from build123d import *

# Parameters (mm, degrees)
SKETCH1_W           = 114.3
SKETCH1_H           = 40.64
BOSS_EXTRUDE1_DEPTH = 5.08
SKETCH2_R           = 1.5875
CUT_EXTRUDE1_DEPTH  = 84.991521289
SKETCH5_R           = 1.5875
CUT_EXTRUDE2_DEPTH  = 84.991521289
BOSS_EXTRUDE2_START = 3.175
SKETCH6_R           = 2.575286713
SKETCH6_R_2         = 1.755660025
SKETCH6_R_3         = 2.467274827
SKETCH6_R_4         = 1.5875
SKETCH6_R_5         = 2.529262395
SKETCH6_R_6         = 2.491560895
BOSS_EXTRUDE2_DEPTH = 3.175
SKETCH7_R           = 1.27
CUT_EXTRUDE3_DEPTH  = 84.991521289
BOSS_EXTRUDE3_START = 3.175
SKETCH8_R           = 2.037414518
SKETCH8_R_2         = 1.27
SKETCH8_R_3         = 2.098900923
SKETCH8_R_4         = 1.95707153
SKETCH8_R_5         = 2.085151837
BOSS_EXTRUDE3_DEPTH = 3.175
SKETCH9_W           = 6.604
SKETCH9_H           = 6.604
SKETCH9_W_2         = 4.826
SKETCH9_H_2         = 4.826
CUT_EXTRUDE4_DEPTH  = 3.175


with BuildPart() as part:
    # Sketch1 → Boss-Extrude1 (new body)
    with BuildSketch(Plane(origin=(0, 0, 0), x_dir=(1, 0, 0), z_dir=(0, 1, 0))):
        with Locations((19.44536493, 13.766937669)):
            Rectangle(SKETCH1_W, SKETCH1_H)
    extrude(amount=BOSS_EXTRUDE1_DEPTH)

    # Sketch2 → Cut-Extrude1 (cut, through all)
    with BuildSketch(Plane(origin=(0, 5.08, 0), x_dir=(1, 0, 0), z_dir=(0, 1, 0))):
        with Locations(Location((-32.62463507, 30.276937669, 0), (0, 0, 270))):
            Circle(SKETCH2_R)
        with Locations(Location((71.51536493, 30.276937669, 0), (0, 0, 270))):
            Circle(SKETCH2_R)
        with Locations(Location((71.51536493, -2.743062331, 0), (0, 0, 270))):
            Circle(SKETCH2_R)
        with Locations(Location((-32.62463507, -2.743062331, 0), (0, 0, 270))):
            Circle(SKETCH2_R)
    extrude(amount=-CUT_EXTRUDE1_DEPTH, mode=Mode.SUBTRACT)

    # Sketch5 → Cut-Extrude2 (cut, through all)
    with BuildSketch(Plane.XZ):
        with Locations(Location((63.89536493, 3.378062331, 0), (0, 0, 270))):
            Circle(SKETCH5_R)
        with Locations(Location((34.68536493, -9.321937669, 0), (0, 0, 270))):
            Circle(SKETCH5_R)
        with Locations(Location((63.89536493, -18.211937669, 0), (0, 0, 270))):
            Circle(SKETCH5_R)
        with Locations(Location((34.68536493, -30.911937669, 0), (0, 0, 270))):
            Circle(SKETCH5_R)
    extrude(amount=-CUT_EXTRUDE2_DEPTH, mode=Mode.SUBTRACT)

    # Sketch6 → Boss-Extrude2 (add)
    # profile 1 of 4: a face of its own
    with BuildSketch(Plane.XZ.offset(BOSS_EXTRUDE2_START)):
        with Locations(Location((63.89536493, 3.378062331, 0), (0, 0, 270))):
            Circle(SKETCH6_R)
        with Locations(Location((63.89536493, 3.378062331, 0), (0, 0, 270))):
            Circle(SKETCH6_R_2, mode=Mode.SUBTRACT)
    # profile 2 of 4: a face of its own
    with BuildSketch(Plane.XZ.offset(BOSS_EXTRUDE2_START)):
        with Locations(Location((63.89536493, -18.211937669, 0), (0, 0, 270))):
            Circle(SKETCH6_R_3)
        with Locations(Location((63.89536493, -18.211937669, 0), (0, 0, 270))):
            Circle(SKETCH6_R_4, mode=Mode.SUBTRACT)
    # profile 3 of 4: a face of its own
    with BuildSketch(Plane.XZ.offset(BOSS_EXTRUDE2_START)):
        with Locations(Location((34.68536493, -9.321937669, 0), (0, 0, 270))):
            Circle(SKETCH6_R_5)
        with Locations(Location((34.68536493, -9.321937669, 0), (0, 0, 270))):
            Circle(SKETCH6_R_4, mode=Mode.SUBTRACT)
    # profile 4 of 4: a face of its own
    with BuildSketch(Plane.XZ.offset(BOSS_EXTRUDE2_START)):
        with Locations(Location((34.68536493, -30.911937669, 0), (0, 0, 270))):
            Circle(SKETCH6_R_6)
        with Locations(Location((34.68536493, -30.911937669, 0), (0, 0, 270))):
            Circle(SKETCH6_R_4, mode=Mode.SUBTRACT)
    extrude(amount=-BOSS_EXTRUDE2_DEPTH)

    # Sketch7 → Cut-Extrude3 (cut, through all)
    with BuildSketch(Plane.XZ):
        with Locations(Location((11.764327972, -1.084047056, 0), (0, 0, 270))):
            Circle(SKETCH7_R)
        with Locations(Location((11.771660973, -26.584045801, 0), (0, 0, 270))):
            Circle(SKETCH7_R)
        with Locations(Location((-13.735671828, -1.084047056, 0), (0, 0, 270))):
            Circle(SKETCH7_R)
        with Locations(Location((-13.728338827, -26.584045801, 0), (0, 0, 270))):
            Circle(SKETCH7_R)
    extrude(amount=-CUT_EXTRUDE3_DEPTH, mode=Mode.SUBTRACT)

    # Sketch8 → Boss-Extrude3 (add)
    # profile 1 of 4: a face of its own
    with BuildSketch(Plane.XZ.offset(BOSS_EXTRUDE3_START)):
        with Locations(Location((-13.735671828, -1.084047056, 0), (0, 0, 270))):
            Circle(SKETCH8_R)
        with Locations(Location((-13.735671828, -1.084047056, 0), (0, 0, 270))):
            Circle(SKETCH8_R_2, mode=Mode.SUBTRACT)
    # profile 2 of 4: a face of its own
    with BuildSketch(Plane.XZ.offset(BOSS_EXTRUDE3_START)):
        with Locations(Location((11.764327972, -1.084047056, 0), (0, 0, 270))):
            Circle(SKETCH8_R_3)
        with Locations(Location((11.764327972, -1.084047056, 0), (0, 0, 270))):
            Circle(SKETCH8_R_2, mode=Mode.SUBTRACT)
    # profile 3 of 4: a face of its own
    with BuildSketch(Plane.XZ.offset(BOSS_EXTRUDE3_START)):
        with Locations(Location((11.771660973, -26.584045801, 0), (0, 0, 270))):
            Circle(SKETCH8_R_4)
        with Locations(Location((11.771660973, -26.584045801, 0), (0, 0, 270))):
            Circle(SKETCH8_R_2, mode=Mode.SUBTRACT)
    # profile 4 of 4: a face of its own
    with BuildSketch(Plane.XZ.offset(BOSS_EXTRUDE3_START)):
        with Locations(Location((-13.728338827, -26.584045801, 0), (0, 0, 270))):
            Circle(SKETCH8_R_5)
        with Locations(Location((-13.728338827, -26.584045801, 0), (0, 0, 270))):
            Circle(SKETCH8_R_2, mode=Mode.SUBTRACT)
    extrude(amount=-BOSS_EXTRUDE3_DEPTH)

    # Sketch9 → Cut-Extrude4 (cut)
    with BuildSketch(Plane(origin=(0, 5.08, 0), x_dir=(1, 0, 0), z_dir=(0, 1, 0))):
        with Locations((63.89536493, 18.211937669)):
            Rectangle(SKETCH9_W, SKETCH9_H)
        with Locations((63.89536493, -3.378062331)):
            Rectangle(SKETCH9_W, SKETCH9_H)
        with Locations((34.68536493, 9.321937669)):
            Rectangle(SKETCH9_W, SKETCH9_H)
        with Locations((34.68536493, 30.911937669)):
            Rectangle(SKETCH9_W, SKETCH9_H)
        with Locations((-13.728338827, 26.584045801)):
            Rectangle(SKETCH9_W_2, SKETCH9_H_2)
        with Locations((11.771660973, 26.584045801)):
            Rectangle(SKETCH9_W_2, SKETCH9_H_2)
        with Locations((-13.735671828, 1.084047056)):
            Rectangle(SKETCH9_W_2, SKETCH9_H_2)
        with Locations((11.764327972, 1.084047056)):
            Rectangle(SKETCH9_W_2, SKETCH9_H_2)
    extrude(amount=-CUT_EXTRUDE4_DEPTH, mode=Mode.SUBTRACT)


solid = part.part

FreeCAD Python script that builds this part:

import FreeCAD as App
import Part
import Sketcher
Q = App.Units.Quantity

doc = App.newDocument("Part")
body = doc.addObject("PartDesign::Body", "Body")

sketch1 = body.newObject("Sketcher::SketchObject", "Sketch")
sketch1.AttachmentSupport = (doc.getObject("XZ_Plane"), [""])
sketch1.MapMode = "FlatFace"
sketch1.addGeometry([
    Part.LineSegment(App.Vector(-38, -34, 0), App.Vector(-38, 7, 0)),
    Part.LineSegment(App.Vector(-38, 7, 0), App.Vector(77, 7, 0)),
    Part.LineSegment(App.Vector(77, 7, 0), App.Vector(77, -34, 0)),
    Part.LineSegment(App.Vector(77, -34, 0), App.Vector(-38, -34, 0)),
], False)
sketch1.addConstraint([
    Sketcher.Constraint("Coincident", 0, 2, 1, 1),
    Sketcher.Constraint("Coincident", 1, 2, 2, 1),
    Sketcher.Constraint("Coincident", 2, 2, 3, 1),
    Sketcher.Constraint("Coincident", 3, 2, 0, 1),
    Sketcher.Constraint("Vertical", 0),
    Sketcher.Constraint("Horizontal", 1),
    Sketcher.Constraint("Vertical", 2),
    Sketcher.Constraint("Horizontal", 3),
    Sketcher.Constraint("DistanceX", 1, 1, 1, 2, Q("4.5 in")),
    Sketcher.Constraint("DistanceY", 0, 1, 0, 2, Q("1.6 in")),
    Sketcher.Constraint("DistanceX", 0, 2, -1, 1, 37.704635),
    Sketcher.Constraint("DistanceY", -1, 1, 0, 2, 6.553062),
])
pad1 = body.newObject("PartDesign::Pad", "Pad")
pad1.Profile = sketch1
pad1.Length = Q("0.2 in")
pad1.Reversed = True

sketch2 = body.newObject("Sketcher::SketchObject", "Sketch001")
sketch2.AttachmentSupport = (doc.getObject("XZ_Plane"), [""])
sketch2.MapMode = "FlatFace"
sketch2.AttachmentOffset = App.Placement(App.Vector(0, 0, -0.2 * 25.4), App.Rotation())
sketch2.addGeometry([
    Part.Circle(App.Vector(-32.6, -30.3, 0), App.Vector(0, 0, 1), 1.6),
    Part.Circle(App.Vector(71.5, -30.3, 0), App.Vector(0, 0, 1), 1.6),
    Part.Circle(App.Vector(71.5, 2.7, 0), App.Vector(0, 0, 1), 1.6),
    Part.Circle(App.Vector(-32.6, 2.7, 0), App.Vector(0, 0, 1), 1.6),
], False)
sketch2.addConstraint([
    Sketcher.Constraint("Equal", 0, 1),
    Sketcher.Constraint("Equal", 1, 2),
    Sketcher.Constraint("Equal", 2, 3),
    Sketcher.Constraint("Horizontal", 0, 3, 1, 3),
    Sketcher.Constraint("Horizontal", 2, 3, 3, 3),
    Sketcher.Constraint("Vertical", 1, 3, 2, 3),
    Sketcher.Constraint("Vertical", 0, 3, 3, 3),
    Sketcher.Constraint("Diameter", 0, Q("0.125 in")),
    Sketcher.Constraint("DistanceX", 0, 3, 1, 3, Q("4.1 in")),
    Sketcher.Constraint("DistanceY", 1, 3, 2, 3, Q("1.3 in")),
    Sketcher.Constraint("DistanceX", 0, 3, -1, 1, 32.624635),
    Sketcher.Constraint("DistanceY", 0, 3, -1, 1, 30.276938),
])
pocket1 = body.newObject("PartDesign::Pocket", "Pocket")
pocket1.Profile = sketch2
pocket1.Type = "ThroughAll"
pocket1.Reversed = True

sketch3 = body.newObject("Sketcher::SketchObject", "Sketch002")
sketch3.AttachmentSupport = (doc.getObject("XZ_Plane"), [""])
sketch3.MapMode = "FlatFace"
sketch3.addGeometry([
    Part.Circle(App.Vector(63.9, 3.4, 0), App.Vector(0, 0, 1), 1.6),
    Part.Circle(App.Vector(34.7, -9.3, 0), App.Vector(0, 0, 1), 1.6),
    Part.Circle(App.Vector(63.9, -18.2, 0), App.Vector(0, 0, 1), 1.6),
    Part.Circle(App.Vector(34.7, -30.9, 0), App.Vector(0, 0, 1), 1.6),
], False)
sketch3.addConstraint([
    Sketcher.Constraint("Equal", 0, 1),
    Sketcher.Constraint("Equal", 1, 2),
    Sketcher.Constraint("Equal", 2, 3),
    Sketcher.Constraint("Vertical", 0, 3, 2, 3),
    Sketcher.Constraint("Vertical", 1, 3, 3, 3),
    Sketcher.Constraint("Diameter", 0, Q("0.125 in")),
    Sketcher.Constraint("DistanceY", 1, 3, 0, 3, Q("0.5 in")),
    Sketcher.Constraint("DistanceY", 3, 3, 2, 3, Q("0.5 in")),
    Sketcher.Constraint("DistanceX", 1, 3, 0, 3, Q("1.15 in")),
    Sketcher.Constraint("DistanceY", 2, 3, 0, 3, Q("0.85 in")),
    Sketcher.Constraint("DistanceX", -1, 1, 0, 3, 63.895365),
    Sketcher.Constraint("DistanceY", -1, 1, 0, 3, 3.378062),
])
pocket2 = body.newObject("PartDesign::Pocket", "Pocket001")
pocket2.Profile = sketch3
pocket2.Type = "ThroughAll"

sketch4 = body.newObject("Sketcher::SketchObject", "Sketch003")
sketch4.AttachmentSupport = (doc.getObject("XZ_Plane"), [""])
sketch4.MapMode = "FlatFace"
sketch4.AttachmentOffset = App.Placement(App.Vector(0, 0, 0.125 * 25.4), App.Rotation())
sketch4.addGeometry([
    Part.Circle(App.Vector(63.9, 3.4, 0), App.Vector(0, 0, 1), 2.6),
    Part.Circle(App.Vector(63.9, 3.4, 0), App.Vector(0, 0, 1), 1.8),
    Part.Circle(App.Vector(63.9, -18.2, 0), App.Vector(0, 0, 1), 2.5),
    Part.Circle(App.Vector(63.9, -18.2, 0), App.Vector(0, 0, 1), 1.6),
    Part.Circle(App.Vector(34.7, -9.3, 0), App.Vector(0, 0, 1), 2.5),
    Part.Circle(App.Vector(34.7, -9.3, 0), App.Vector(0, 0, 1), 1.6),
    Part.Circle(App.Vector(34.7, -30.9, 0), App.Vector(0, 0, 1), 2.5),
    Part.Circle(App.Vector(34.7, -30.9, 0), App.Vector(0, 0, 1), 1.6),
], False)
sketch4.addConstraint([
    Sketcher.Constraint("Coincident", 1, 3, 0, 3),
    Sketcher.Constraint("Coincident", 3, 3, 2, 3),
    Sketcher.Constraint("Coincident", 5, 3, 4, 3),
    Sketcher.Constraint("Coincident", 7, 3, 6, 3),
    Sketcher.Constraint("Equal", 3, 5),
    Sketcher.Constraint("Equal", 5, 7),
    Sketcher.Constraint("Vertical", 1, 3, 2, 3),
    Sketcher.Constraint("Vertical", 5, 3, 6, 3),
    Sketcher.Constraint("Diameter", 3, Q("0.125 in")),
    Sketcher.Constraint("DistanceY", 4, 3, 0, 3, Q("0.5 in")),
    Sketcher.Constraint("DistanceY", 6, 3, 2, 3, Q("0.5 in")),
    Sketcher.Constraint("DistanceY", 2, 3, 0, 3, Q("0.85 in")),
    Sketcher.Constraint("DistanceX", 4, 3, 2, 3, Q("1.15 in")),
    Sketcher.Constraint("Diameter", 1, 3.51132),
    Sketcher.Constraint("Diameter", 2, 4.93455),
    Sketcher.Constraint("Diameter", 6, 4.983122),
    Sketcher.Constraint("Diameter", 0, 5.150573),
    Sketcher.Constraint("Diameter", 4, 5.058525),
    Sketcher.Constraint("DistanceX", -1, 1, 0, 3, 63.895365),
    Sketcher.Constraint("DistanceY", -1, 1, 0, 3, 3.378062),
])
pad2 = body.newObject("PartDesign::Pad", "Pad001")
pad2.Profile = sketch4
pad2.Length = Q("0.125 in")
pad2.Reversed = True

sketch5 = body.newObject("Sketcher::SketchObject", "Sketch004")
sketch5.AttachmentSupport = (doc.getObject("XZ_Plane"), [""])
sketch5.MapMode = "FlatFace"
sketch5.addGeometry([
    Part.Circle(App.Vector(11.8, -1.1, 0), App.Vector(0, 0, 1), 1.3),
    Part.Circle(App.Vector(11.8, -26.6, 0), App.Vector(0, 0, 1), 1.3),
    Part.Circle(App.Vector(-13.7, -1.1, 0), App.Vector(0, 0, 1), 1.3),
    Part.Circle(App.Vector(-13.7, -26.6, 0), App.Vector(0, 0, 1), 1.3),
], False)
sketch5.addConstraint([
    Sketcher.Constraint("Equal", 0, 1),
    Sketcher.Constraint("Equal", 1, 2),
    Sketcher.Constraint("Equal", 2, 3),
    Sketcher.Constraint("Horizontal", 0, 3, 2, 3),
    Sketcher.Constraint("Horizontal", 1, 3, 3, 3),
    Sketcher.Constraint("Diameter", 0, Q("0.1 in")),
    Sketcher.Constraint("DistanceY", 1, 3, 0, 3, 25.499999),
    Sketcher.Constraint("DistanceX", 2, 3, 0, 3, 25.5),
    Sketcher.Constraint("DistanceX", 3, 3, 1, 3, 25.5),
    Sketcher.Constraint("DistanceX", -1, 1, 1, 3, 11.771661),
    Sketcher.Constraint("DistanceX", 2, 3, -1, 1, 13.735672),
    Sketcher.Constraint("DistanceY", 0, 3, -1, 1, 1.084047),
])
pocket3 = body.newObject("PartDesign::Pocket", "Pocket002")
pocket3.Profile = sketch5
pocket3.Type = "ThroughAll"

sketch6 = body.newObject("Sketcher::SketchObject", "Sketch005")
sketch6.AttachmentSupport = (doc.getObject("XZ_Plane"), [""])
sketch6.MapMode = "FlatFace"
sketch6.AttachmentOffset = App.Placement(App.Vector(0, 0, 0.125 * 25.4), App.Rotation())
sketch6.addGeometry([
    Part.Circle(App.Vector(-13.7, -1.1, 0), App.Vector(0, 0, 1), 2),
    Part.Circle(App.Vector(-13.7, -1.1, 0), App.Vector(0, 0, 1), 1.3),
    Part.Circle(App.Vector(11.8, -1.1, 0), App.Vector(0, 0, 1), 2.1),
    Part.Circle(App.Vector(11.8, -1.1, 0), App.Vector(0, 0, 1), 1.3),
    Part.Circle(App.Vector(11.8, -26.6, 0), App.Vector(0, 0, 1), 2),
    Part.Circle(App.Vector(11.8, -26.6, 0), App.Vector(0, 0, 1), 1.3),
    Part.Circle(App.Vector(-13.7, -26.6, 0), App.Vector(0, 0, 1), 2.1),
    Part.Circle(App.Vector(-13.7, -26.6, 0), App.Vector(0, 0, 1), 1.3),
], False)
sketch6.addConstraint([
    Sketcher.Constraint("Coincident", 1, 3, 0, 3),
    Sketcher.Constraint("Coincident", 3, 3, 2, 3),
    Sketcher.Constraint("Coincident", 5, 3, 4, 3),
    Sketcher.Constraint("Coincident", 7, 3, 6, 3),
    Sketcher.Constraint("Equal", 1, 3),
    Sketcher.Constraint("Equal", 3, 5),
    Sketcher.Constraint("Equal", 5, 7),
    Sketcher.Constraint("Horizontal", 1, 3, 2, 3),
    Sketcher.Constraint("Horizontal", 5, 3, 6, 3),
    Sketcher.Constraint("Diameter", 1, Q("0.1 in")),
    Sketcher.Constraint("Diameter", 4, Q("0.1541001 in")),
    Sketcher.Constraint("Diameter", 2, 4.197802),
    Sketcher.Constraint("Diameter", 0, 4.074829),
    Sketcher.Constraint("Diameter", 6, 4.170304),
    Sketcher.Constraint("DistanceX", 0, 3, 2, 3, 25.5),
    Sketcher.Constraint("DistanceY", 4, 3, 2, 3, 25.499999),
    Sketcher.Constraint("DistanceX", 6, 3, 4, 3, 25.5),
    Sketcher.Constraint("DistanceX", 0, 3, -1, 1, 13.735672),
    Sketcher.Constraint("DistanceX", -1, 1, 4, 3, 11.771661),
    Sketcher.Constraint("DistanceY", 0, 3, -1, 1, 1.084047),
])
pad3 = body.newObject("PartDesign::Pad", "Pad002")
pad3.Profile = sketch6
pad3.Length = Q("0.125 in")
pad3.Reversed = True

sketch7 = body.newObject("Sketcher::SketchObject", "Sketch006")
sketch7.AttachmentSupport = (doc.getObject("XZ_Plane"), [""])
sketch7.MapMode = "FlatFace"
sketch7.AttachmentOffset = App.Placement(App.Vector(0, 0, -0.2 * 25.4), App.Rotation())
sketch7.addGeometry([
    Part.LineSegment(App.Vector(60.6, -21.5, 0), App.Vector(60.6, -14.9, 0)),
    Part.LineSegment(App.Vector(60.6, -14.9, 0), App.Vector(67.2, -14.9, 0)),
    Part.LineSegment(App.Vector(67.2, -14.9, 0), App.Vector(67.2, -21.5, 0)),
    Part.LineSegment(App.Vector(67.2, -21.5, 0), App.Vector(60.6, -21.5, 0)),
    Part.LineSegment(App.Vector(60.6, 0.1, 0), App.Vector(60.6, 6.7, 0)),
    Part.LineSegment(App.Vector(60.6, 6.7, 0), App.Vector(67.2, 6.7, 0)),
    Part.LineSegment(App.Vector(67.2, 6.7, 0), App.Vector(67.2, 0.1, 0)),
    Part.LineSegment(App.Vector(67.2, 0.1, 0), App.Vector(60.6, 0.1, 0)),
    Part.LineSegment(App.Vector(31.4, -12.6, 0), App.Vector(31.4, -6, 0)),
    Part.LineSegment(App.Vector(31.4, -6, 0), App.Vector(38, -6, 0)),
    Part.LineSegment(App.Vector(38, -6, 0), App.Vector(38, -12.6, 0)),
    Part.LineSegment(App.Vector(38, -12.6, 0), App.Vector(31.4, -12.6, 0)),
    Part.LineSegment(App.Vector(31.4, -34.2, 0), App.Vector(31.4, -27.6, 0)),
    Part.LineSegment(App.Vector(31.4, -27.6, 0), App.Vector(38, -27.6, 0)),
    Part.LineSegment(App.Vector(38, -27.6, 0), App.Vector(38, -34.2, 0)),
    Part.LineSegment(App.Vector(38, -34.2, 0), App.Vector(31.4, -34.2, 0)),
    Part.LineSegment(App.Vector(-16.1, -29, 0), App.Vector(-16.1, -24.2, 0)),
    Part.LineSegment(App.Vector(-16.1, -24.2, 0), App.Vector(-11.3, -24.2, 0)),
    Part.LineSegment(App.Vector(-11.3, -24.2, 0), App.Vector(-11.3, -29, 0)),
    Part.LineSegment(App.Vector(-11.3, -29, 0), App.Vector(-16.1, -29, 0)),
    Part.LineSegment(App.Vector(9.4, -29, 0), App.Vector(9.4, -24.2, 0)),
    Part.LineSegment(App.Vector(9.4, -24.2, 0), App.Vector(14.2, -24.2, 0)),
    Part.LineSegment(App.Vector(14.2, -24.2, 0), App.Vector(14.2, -29, 0)),
    Part.LineSegment(App.Vector(14.2, -29, 0), App.Vector(9.4, -29, 0)),
    Part.LineSegment(App.Vector(-16.1, -3.5, 0), App.Vector(-16.1, 1.3, 0)),
    Part.LineSegment(App.Vector(-16.1, 1.3, 0), App.Vector(-11.3, 1.3, 0)),
    Part.LineSegment(App.Vector(-11.3, 1.3, 0), App.Vector(-11.3, -3.5, 0)),
    Part.LineSegment(App.Vector(-11.3, -3.5, 0), App.Vector(-16.1, -3.5, 0)),
    Part.LineSegment(App.Vector(9.4, -3.5, 0), App.Vector(9.4, 1.3, 0)),
    Part.LineSegment(App.Vector(9.4, 1.3, 0), App.Vector(14.2, 1.3, 0)),
    Part.LineSegment(App.Vector(14.2, 1.3, 0), App.Vector(14.2, -3.5, 0)),
    Part.LineSegment(App.Vector(14.2, -3.5, 0), App.Vector(9.4, -3.5, 0)),
], False)
sketch7.addConstraint([
    Sketcher.Constraint("Coincident", 0, 2, 1, 1),
    Sketcher.Constraint("Coincident", 1, 2, 2, 1),
    Sketcher.Constraint("Coincident", 2, 2, 3, 1),
    Sketcher.Constraint("Coincident", 3, 2, 0, 1),
    Sketcher.Constraint("Coincident", 4, 2, 5, 1),
    Sketcher.Constraint("Coincident", 5, 2, 6, 1),
    Sketcher.Constraint("Coincident", 6, 2, 7, 1),
    Sketcher.Constraint("Coincident", 7, 2, 4, 1),
    Sketcher.Constraint("Coincident", 8, 2, 9, 1),
    Sketcher.Constraint("Coincident", 9, 2, 10, 1),
    Sketcher.Constraint("Coincident", 10, 2, 11, 1),
    Sketcher.Constraint("Coincident", 11, 2, 8, 1),
    Sketcher.Constraint("Coincident", 12, 2, 13, 1),
    Sketcher.Constraint("Coincident", 13, 2, 14, 1),
    Sketcher.Constraint("Coincident", 14, 2, 15, 1),
    Sketcher.Constraint("Coincident", 15, 2, 12, 1),
    Sketcher.Constraint("Coincident", 16, 2, 17, 1),
    Sketcher.Constraint("Coincident", 17, 2, 18, 1),
    Sketcher.Constraint("Coincident", 18, 2, 19, 1),
    Sketcher.Constraint("Coincident", 19, 2, 16, 1),
    Sketcher.Constraint("Coincident", 20, 2, 21, 1),
    Sketcher.Constraint("Coincident", 21, 2, 22, 1),
    Sketcher.Constraint("Coincident", 22, 2, 23, 1),
    Sketcher.Constraint("Coincident", 23, 2, 20, 1),
    Sketcher.Constraint("Coincident", 24, 2, 25, 1),
    Sketcher.Constraint("Coincident", 25, 2, 26, 1),
    Sketcher.Constraint("Coincident", 26, 2, 27, 1),
    Sketcher.Constraint("Coincident", 27, 2, 24, 1),
    Sketcher.Constraint("Coincident", 28, 2, 29, 1),
    Sketcher.Constraint("Coincident", 29, 2, 30, 1),
    Sketcher.Constraint("Coincident", 30, 2, 31, 1),
    Sketcher.Constraint("Coincident", 31, 2, 28, 1),
    Sketcher.Constraint("Vertical", 0),
    Sketcher.Constraint("Horizontal", 1),
    Sketcher.Constraint("Vertical", 2),
    Sketcher.Constraint("Horizontal", 3),
    Sketcher.Constraint("Vertical", 4),
    Sketcher.Constraint("Horizontal", 5),
    Sketcher.Constraint("Vertical", 6),
    Sketcher.Constraint("Horizontal", 7),
    Sketcher.Constraint("Vertical", 8),
    Sketcher.Constraint("Horizontal", 9),
    Sketcher.Constraint("Vertical", 10),
    Sketcher.Constraint("Horizontal", 11),
    Sketcher.Constraint("Vertical", 12),
    Sketcher.Constraint("Horizontal", 13),
    Sketcher.Constraint("Vertical", 14),
    Sketcher.Constraint("Horizontal", 15),
    Sketcher.Constraint("Vertical", 16),
    Sketcher.Constraint("Horizontal", 17),
    Sketcher.Constraint("Vertical", 18),
    Sketcher.Constraint("Horizontal", 19),
    Sketcher.Constraint("Vertical", 20),
    Sketcher.Constraint("Horizontal", 21),
    Sketcher.Constraint("Vertical", 22),
    Sketcher.Constraint("Horizontal", 23),
    Sketcher.Constraint("Vertical", 24),
    Sketcher.Constraint("Horizontal", 25),
    Sketcher.Constraint("Vertical", 26),
    Sketcher.Constraint("Horizontal", 27),
    Sketcher.Constraint("Vertical", 28),
    Sketcher.Constraint("Horizontal", 29),
    Sketcher.Constraint("Vertical", 30),
    Sketcher.Constraint("Horizontal", 31),
    Sketcher.Constraint("Horizontal", 17, 2, 20, 2),
    Sketcher.Constraint("Horizontal", 19, 2, 22, 2),
    Sketcher.Constraint("Horizontal", 25, 2, 28, 2),
    Sketcher.Constraint("Horizontal", 27, 2, 30, 2),
    Sketcher.Constraint("Vertical", 3, 2, 4, 2),
    Sketcher.Constraint("Vertical", 2, 2, 5, 2),
    Sketcher.Constraint("Vertical", 11, 2, 12, 2),
    Sketcher.Constraint("Vertical", 10, 2, 13, 2),
    Sketcher.Constraint("Equal", 7, 9),
    Sketcher.Constraint("Equal", 19, 21),
    Sketcher.Constraint("Equal", 23, 25),
    Sketcher.Constraint("Equal", 27, 29),
    Sketcher.Constraint("Equal", 15, 0),
    Sketcher.Constraint("Equal", 2, 4),
    Sketcher.Constraint("Equal", 6, 8),
    Sketcher.Constraint("Equal", 10, 12),
    Sketcher.Constraint("Equal", 31, 16),
    Sketcher.Constraint("Equal", 22, 24),
    Sketcher.Constraint("DistanceX", 1, 1, 1, 2, Q("0.26 in")),
    Sketcher.Constraint("DistanceX", 17, 1, 17, 2, Q("0.19 in")),
    Sketcher.Constraint("DistanceY", 8, 2, 4, 2, Q("0.5 in")),
    Sketcher.Constraint("DistanceY", 14, 2, 3, 2, Q("0.5 in")),
    Sketcher.Constraint("DistanceY", 0, 2, 4, 2, Q("0.85 in")),
    Sketcher.Constraint("DistanceX", 8, 2, 7, 2, Q("1.15 in")),
    Sketcher.Constraint("DistanceX", 17, 2, 20, 2, 20.674),
    Sketcher.Constraint("DistanceY", 16, 2, 24, 2, 25.499999),
    Sketcher.Constraint("DistanceX", 25, 2, 28, 2, 20.674),
    Sketcher.Constraint("DistanceX", 16, 2, -1, 1, 16.141339),
    Sketcher.Constraint("DistanceX", 24, 2, -1, 1, 16.148672),
    Sketcher.Constraint("DistanceY", 12, 2, 16, 2, 3.438892),
    Sketcher.Constraint("DistanceX", -1, 1, 0, 2, 60.593365),
    Sketcher.Constraint("DistanceY", 0, 2, -1, 1, 14.909938),
])
pocket4 = body.newObject("PartDesign::Pocket", "Pocket003")
pocket4.Profile = sketch7
pocket4.Length = Q("0.125 in")
pocket4.Reversed = True

doc.recompute()
